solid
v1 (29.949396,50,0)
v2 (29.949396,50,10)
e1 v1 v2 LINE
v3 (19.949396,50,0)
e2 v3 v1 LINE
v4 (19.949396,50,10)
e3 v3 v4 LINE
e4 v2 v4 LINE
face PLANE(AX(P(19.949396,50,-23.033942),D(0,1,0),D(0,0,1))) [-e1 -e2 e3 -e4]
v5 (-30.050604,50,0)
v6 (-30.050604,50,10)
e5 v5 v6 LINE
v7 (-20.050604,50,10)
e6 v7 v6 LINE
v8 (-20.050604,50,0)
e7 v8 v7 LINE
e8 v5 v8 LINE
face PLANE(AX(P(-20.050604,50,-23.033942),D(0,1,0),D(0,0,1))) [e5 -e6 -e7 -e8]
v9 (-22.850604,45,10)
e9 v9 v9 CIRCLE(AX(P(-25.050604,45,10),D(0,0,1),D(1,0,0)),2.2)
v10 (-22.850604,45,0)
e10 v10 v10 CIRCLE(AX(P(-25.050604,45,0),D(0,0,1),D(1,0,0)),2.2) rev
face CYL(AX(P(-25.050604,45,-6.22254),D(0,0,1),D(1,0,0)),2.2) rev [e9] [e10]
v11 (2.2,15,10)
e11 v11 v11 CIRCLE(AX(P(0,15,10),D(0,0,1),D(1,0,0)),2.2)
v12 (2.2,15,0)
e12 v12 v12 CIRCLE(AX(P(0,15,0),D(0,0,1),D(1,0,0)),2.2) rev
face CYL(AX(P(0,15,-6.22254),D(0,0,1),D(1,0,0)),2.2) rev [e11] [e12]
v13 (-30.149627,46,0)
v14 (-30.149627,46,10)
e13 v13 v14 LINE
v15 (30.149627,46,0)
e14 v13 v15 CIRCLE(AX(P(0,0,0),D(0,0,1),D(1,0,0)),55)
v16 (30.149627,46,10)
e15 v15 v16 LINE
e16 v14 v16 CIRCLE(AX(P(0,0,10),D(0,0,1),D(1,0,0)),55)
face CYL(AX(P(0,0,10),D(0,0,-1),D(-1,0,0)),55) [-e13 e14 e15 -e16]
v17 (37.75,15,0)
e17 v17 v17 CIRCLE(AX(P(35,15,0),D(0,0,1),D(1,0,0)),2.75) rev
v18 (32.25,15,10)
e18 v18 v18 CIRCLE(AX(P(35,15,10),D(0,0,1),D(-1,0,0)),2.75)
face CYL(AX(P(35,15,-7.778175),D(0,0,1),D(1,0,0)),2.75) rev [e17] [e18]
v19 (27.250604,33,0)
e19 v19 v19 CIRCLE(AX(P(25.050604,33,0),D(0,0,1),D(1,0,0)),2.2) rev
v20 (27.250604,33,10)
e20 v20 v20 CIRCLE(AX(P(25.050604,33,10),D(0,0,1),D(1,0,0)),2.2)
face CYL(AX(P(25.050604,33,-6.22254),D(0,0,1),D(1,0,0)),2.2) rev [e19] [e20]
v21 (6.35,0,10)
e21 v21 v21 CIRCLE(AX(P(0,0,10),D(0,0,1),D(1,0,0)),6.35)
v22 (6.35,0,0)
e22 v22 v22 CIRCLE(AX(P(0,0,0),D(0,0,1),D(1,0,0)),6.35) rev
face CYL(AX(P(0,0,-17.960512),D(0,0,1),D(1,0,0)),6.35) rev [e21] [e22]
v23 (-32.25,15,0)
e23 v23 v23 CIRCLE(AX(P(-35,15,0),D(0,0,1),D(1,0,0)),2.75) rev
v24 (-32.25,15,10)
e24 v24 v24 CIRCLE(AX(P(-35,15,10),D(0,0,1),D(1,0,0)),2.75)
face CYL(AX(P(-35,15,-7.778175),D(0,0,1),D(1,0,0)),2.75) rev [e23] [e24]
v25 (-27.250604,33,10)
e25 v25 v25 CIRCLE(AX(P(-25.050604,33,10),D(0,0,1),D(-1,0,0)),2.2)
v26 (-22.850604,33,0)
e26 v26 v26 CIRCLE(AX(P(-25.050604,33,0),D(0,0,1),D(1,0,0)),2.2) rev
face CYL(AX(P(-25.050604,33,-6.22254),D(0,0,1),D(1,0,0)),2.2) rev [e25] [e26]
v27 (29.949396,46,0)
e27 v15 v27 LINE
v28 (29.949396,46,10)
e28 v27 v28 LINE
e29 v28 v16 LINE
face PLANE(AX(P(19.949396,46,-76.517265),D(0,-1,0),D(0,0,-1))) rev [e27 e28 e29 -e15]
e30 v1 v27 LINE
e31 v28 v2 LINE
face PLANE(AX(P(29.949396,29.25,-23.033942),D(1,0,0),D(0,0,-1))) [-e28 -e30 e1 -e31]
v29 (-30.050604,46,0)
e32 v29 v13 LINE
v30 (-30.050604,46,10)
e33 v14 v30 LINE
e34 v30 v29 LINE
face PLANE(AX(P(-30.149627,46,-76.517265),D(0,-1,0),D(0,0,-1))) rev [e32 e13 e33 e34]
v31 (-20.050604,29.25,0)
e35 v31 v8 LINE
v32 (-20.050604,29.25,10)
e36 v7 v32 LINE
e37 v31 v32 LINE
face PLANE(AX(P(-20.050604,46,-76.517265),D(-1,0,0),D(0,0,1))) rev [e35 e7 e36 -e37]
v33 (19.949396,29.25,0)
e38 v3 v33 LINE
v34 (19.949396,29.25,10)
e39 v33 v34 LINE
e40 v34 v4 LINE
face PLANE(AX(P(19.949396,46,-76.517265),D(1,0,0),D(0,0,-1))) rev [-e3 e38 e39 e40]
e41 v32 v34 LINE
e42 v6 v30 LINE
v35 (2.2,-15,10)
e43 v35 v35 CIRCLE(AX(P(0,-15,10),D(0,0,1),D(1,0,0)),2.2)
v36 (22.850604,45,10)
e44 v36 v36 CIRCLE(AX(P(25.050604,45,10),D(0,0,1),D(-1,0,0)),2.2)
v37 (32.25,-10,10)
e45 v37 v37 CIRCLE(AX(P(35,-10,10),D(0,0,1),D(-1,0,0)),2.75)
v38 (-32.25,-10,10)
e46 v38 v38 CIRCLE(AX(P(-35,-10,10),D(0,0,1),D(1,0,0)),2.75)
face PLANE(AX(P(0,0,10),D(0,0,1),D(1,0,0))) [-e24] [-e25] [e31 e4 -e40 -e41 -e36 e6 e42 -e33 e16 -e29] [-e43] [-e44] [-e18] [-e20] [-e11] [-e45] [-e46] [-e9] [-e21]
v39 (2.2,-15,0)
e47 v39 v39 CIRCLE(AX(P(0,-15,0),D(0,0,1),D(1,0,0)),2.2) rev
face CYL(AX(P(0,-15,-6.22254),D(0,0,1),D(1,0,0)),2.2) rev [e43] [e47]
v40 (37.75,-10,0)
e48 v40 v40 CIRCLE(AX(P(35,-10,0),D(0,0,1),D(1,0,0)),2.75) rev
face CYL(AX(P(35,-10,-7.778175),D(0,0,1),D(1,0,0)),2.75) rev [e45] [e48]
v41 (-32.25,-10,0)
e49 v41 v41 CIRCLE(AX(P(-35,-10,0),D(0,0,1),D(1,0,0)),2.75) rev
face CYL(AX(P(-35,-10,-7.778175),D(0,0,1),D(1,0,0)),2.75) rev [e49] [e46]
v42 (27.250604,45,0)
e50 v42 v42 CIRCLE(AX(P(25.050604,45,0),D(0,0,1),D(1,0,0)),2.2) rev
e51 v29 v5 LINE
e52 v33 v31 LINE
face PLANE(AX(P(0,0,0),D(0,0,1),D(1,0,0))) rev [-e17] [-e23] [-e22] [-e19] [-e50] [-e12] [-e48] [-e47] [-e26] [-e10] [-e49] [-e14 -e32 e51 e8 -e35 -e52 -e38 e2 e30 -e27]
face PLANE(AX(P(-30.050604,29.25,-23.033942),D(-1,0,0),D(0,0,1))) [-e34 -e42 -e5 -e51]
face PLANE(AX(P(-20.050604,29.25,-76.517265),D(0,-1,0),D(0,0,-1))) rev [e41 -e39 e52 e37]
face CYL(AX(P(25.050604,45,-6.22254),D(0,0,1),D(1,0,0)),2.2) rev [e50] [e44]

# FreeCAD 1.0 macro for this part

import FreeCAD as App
import Part
import Sketcher
Q = App.Units.Quantity


def add_polygon(sketch, points):
    """Adds a closed chain of lines whose ends are joined by coincident constraints."""
    first, n = sketch.GeometryCount, len(points)
    for a, b in zip(points, points[1:] + points[:1]):
        sketch.addGeometry(Part.LineSegment(App.Vector(*a, 0), App.Vector(*b, 0)), False)
    for i in range(n):
        sketch.addConstraint(Sketcher.Constraint("Coincident", first + i, 2, first + (i + 1) % n, 1))

doc = App.newDocument("Part")
body = doc.addObject("PartDesign::Body", "Body")

sketch1 = doc.addObject("Sketcher::SketchObject", "Sketch")
body.addObject(sketch1)
sketch1.AttachmentSupport = (doc.XY_Plane, [""])
sketch1.MapMode = "FlatFace"
sketch1.addGeometry(Part.Circle(App.Vector(0, 0, 0), App.Vector(0, 0, 1), 55), False)
sketch1.addConstraint([
    Sketcher.Constraint("Coincident", 0, 3, -1, 1),
    Sketcher.Constraint("Diameter", 0, Q("110 mm")),
])
pad1 = doc.addObject("PartDesign::Pad", "Pad")
body.addObject(pad1)
pad1.Profile = sketch1
pad1.Length = 10

sketch2 = doc.addObject("Sketcher::SketchObject", "Sketch001")
body.addObject(sketch2)
sketch2.AttachmentSupport = (doc.XY_Plane, [""])
sketch2.MapMode = "FlatFace"
sketch2.AttachmentOffset = App.Placement(App.Vector(0, 0, 10), App.Rotation())
add_polygon(sketch2, [(-20, 46), (-20, 29), (20, 29), (20, 46), (30, 46), (30, 76), (-30, 76), (-30, 46)])
sketch2.addConstraint([
    Sketcher.Constraint("Vertical", 0),
    Sketcher.Constraint("Horizontal", 1),
    Sketcher.Constraint("Vertical", 2),
    Sketcher.Constraint("Horizontal", 3),
    Sketcher.Constraint("Vertical", 4),
    Sketcher.Constraint("Horizontal", 5),
    Sketcher.Constraint("Vertical", 6),
    Sketcher.Constraint("Horizontal", 7),
    Sketcher.Constraint("Symmetric", 3, 2, 6, 2, -2),
    Sketcher.Constraint("DistanceX", 1, 1, 1, 2, Q("40 mm")),
    Sketcher.Constraint("DistanceY", -1, 1, 2, 2, Q("46 mm")),
    Sketcher.Constraint("DistanceY", 0, 2, 0, 1, Q("16.75 mm")),
    Sketcher.Constraint("DistanceX", 3, 1, 3, 2, Q("10.200231 mm")),
    Sketcher.Constraint("DistanceX", 5, 2, 5, 1, Q("60.299254 mm")),
    Sketcher.Constraint("DistanceY", 4, 1, 4, 2, Q("30.355116 mm")),
])
pocket1 = doc.addObject("PartDesign::Pocket", "Pocket")
body.addObject(pocket1)
pocket1.Profile = sketch2
pocket1.Length = 10

sketch3 = doc.addObject("Sketcher::SketchObject", "Sketch002")
body.addObject(sketch3)
sketch3.AttachmentSupport = (doc.XY_Plane, [""])
sketch3.MapMode = "FlatFace"
sketch3.AttachmentOffset = App.Placement(App.Vector(0, 0, 10), App.Rotation())
add_polygon(sketch3, [(-30, 50), (-30, 29), (-20, 29), (-20, 50)])
add_polygon(sketch3, [(20, 50), (20, 29), (30, 29), (30, 50)])
sketch3.addConstraint([
    Sketcher.Constraint("Vertical", 0),
    Sketcher.Constraint("Horizontal", 1),
    Sketcher.Constraint("Vertical", 2),
    Sketcher.Constraint("Horizontal", 3),
    Sketcher.Constraint("Vertical", 4),
    Sketcher.Constraint("Horizontal", 5),
    Sketcher.Constraint("Vertical", 6),
    Sketcher.Constraint("Horizontal", 7),
    Sketcher.Constraint("Horizontal", 1, 2, 4, 2),
    Sketcher.Constraint("Horizontal", 3, 2, 6, 2),
    Sketcher.Constraint("Equal", 3, 5),
    Sketcher.Constraint("DistanceX", 1, 1, 1, 2, Q("10 mm")),
    Sketcher.Constraint("DistanceY", -1, 1, 2, 2, Q("50 mm")),
    Sketcher.Constraint("DistanceX", 1, 2, 4, 2, Q("40 mm")),
    Sketcher.Constraint("DistanceY", 0, 2, 0, 1, Q("20.75 mm")),
    Sketcher.Constraint("DistanceX", 0, 2, -1, 1, Q("30.050604 mm")),
])
pad2 = doc.addObject("PartDesign::Pad", "Pad001")
body.addObject(pad2)
pad2.Profile = sketch3
pad2.Length = 10
pad2.Reversed = True

sketch4 = doc.addObject("Sketcher::SketchObject", "Sketch003")
body.addObject(sketch4)
sketch4.AttachmentSupport = (doc.XY_Plane, [""])
sketch4.MapMode = "FlatFace"
sketch4.AttachmentOffset = App.Placement(App.Vector(0, 0, 10), App.Rotation())
sketch4.addGeometry([
    Part.Circle(App.Vector(-25.1, 45, 0), App.Vector(0, 0, 1), 2.2),
    Part.Circle(App.Vector(-25.1, 33, 0), App.Vector(0, 0, 1), 2.2),
    Part.Circle(App.Vector(25.1, 33, 0), App.Vector(0, 0, 1), 2.2),
    Part.Circle(App.Vector(25.1, 45, 0), App.Vector(0, 0, 1), 2.2),
], False)
sketch4.addConstraint([
    Sketcher.Constraint("Equal", 0, 1),
    Sketcher.Constraint("Equal", 1, 2),
    Sketcher.Constraint("Equal", 2, 3),
    Sketcher.Constraint("Symmetric", 1, 3, 2, 3, -2),
    Sketcher.Constraint("Symmetric", 0, 3, 3, 3, -2),
    Sketcher.Constraint("Vertical", 0, 3, 1, 3),
    Sketcher.Constraint("Diameter", 0, Q("4.4 mm")),
    Sketcher.Constraint("DistanceY", -1, 1, 0, 3, Q("45 mm")),
    Sketcher.Constraint("DistanceY", -1, 1, 1, 3, Q("33 mm")),
    Sketcher.Constraint("DistanceX", 0, 3, -1, 1, Q("25.050604 mm")),
])
pocket2 = doc.addObject("PartDesign::Pocket", "Pocket001")
body.addObject(pocket2)
pocket2.Profile = sketch4
pocket2.Length = 10

sketch5 = doc.addObject("Sketcher::SketchObject", "Sketch004")
body.addObject(sketch5)
sketch5.AttachmentSupport = (doc.XY_Plane, [""])
sketch5.MapMode = "FlatFace"
sketch5.AttachmentOffset = App.Placement(App.Vector(0, 0, 10), App.Rotation())
sketch5.addGeometry(Part.Circle(App.Vector(0, 0, 0), App.Vector(0, 0, 1), 6), False)
sketch5.addConstraint([
    Sketcher.Constraint("Coincident", 0, 3, -1, 1),
    Sketcher.Constraint("Diameter", 0, Q("12.7 mm")),
])
pocket3 = doc.addObject("PartDesign::Pocket", "Pocket002")
body.addObject(pocket3)
pocket3.Profile = sketch5
pocket3.Length = 10

sketch6 = doc.addObject("Sketcher::SketchObject", "Sketch005")
body.addObject(sketch6)
sketch6.AttachmentSupport = (doc.XY_Plane, [""])
sketch6.MapMode = "FlatFace"
sketch6.AttachmentOffset = App.Placement(App.Vector(0, 0, 10), App.Rotation())
sketch6.addGeometry([
    Part.Circle(App.Vector(0, 15, 0), App.Vector(0, 0, 1), 2.2),
    Part.Circle(App.Vector(0, -15, 0), App.Vector(0, 0, 1), 2.2),
], False)
sketch6.addConstraint([
    Sketcher.Constraint("Equal", 0, 1),
    Sketcher.Constraint("Symmetric", 0, 3, 1, 3, -1, 1),
    Sketcher.Constraint("PointOnObject", 0, 3, -2),
    Sketcher.Constraint("Diameter", 0, Q("4.4 mm")),
    Sketcher.Constraint("DistanceY", -1, 1, 0, 3, Q("15 mm")),
])
pocket4 = doc.addObject("PartDesign::Pocket", "Pocket003")
body.addObject(pocket4)
pocket4.Profile = sketch6
pocket4.Length = 10

sketch7 = doc.addObject("Sketcher::SketchObject", "Sketch006")
body.addObject(sketch7)
sketch7.AttachmentSupport = (doc.XY_Plane, [""])
sketch7.MapMode = "FlatFace"
sketch7.AttachmentOffset = App.Placement(App.Vector(0, 0, 10), App.Rotation())
sketch7.addGeometry([
    Part.Circle(App.Vector(-35, 15, 0), App.Vector(0, 0, 1), 2.8),
    Part.Circle(App.Vector(-35, -10, 0), App.Vector(0, 0, 1), 2.8),
    Part.Circle(App.Vector(35, -10, 0), App.Vector(0, 0, 1), 2.8),
    Part.Circle(App.Vector(35, 15, 0), App.Vector(0, 0, 1), 2.8),
], False)
sketch7.addConstraint([
    Sketcher.Constraint("Equal", 0, 1),
    Sketcher.Constraint("Equal", 1, 2),
    Sketcher.Constraint("Equal", 2, 3),
    Sketcher.Constraint("Symmetric", 1, 3, 2, 3, -2),
    Sketcher.Constraint("Symmetric", 0, 3, 3, 3, -2),
    Sketcher.Constraint("Vertical", 0, 3, 1, 3),
    Sketcher.Constraint("Diameter", 0, Q("5.5 mm")),
    Sketcher.Constraint("DistanceX", 0, 3, -1, 1, Q("35 mm")),
    Sketcher.Constraint("DistanceY", -1, 1, 0, 3, Q("15 mm")),
    Sketcher.Constraint("DistanceY", 1, 3, -1, 1, Q("10 mm")),
])
pocket5 = doc.addObject("PartDesign::Pocket", "Pocket004")
body.addObject(pocket5)
pocket5.Profile = sketch7
pocket5.Length = 10

doc.recompute()
